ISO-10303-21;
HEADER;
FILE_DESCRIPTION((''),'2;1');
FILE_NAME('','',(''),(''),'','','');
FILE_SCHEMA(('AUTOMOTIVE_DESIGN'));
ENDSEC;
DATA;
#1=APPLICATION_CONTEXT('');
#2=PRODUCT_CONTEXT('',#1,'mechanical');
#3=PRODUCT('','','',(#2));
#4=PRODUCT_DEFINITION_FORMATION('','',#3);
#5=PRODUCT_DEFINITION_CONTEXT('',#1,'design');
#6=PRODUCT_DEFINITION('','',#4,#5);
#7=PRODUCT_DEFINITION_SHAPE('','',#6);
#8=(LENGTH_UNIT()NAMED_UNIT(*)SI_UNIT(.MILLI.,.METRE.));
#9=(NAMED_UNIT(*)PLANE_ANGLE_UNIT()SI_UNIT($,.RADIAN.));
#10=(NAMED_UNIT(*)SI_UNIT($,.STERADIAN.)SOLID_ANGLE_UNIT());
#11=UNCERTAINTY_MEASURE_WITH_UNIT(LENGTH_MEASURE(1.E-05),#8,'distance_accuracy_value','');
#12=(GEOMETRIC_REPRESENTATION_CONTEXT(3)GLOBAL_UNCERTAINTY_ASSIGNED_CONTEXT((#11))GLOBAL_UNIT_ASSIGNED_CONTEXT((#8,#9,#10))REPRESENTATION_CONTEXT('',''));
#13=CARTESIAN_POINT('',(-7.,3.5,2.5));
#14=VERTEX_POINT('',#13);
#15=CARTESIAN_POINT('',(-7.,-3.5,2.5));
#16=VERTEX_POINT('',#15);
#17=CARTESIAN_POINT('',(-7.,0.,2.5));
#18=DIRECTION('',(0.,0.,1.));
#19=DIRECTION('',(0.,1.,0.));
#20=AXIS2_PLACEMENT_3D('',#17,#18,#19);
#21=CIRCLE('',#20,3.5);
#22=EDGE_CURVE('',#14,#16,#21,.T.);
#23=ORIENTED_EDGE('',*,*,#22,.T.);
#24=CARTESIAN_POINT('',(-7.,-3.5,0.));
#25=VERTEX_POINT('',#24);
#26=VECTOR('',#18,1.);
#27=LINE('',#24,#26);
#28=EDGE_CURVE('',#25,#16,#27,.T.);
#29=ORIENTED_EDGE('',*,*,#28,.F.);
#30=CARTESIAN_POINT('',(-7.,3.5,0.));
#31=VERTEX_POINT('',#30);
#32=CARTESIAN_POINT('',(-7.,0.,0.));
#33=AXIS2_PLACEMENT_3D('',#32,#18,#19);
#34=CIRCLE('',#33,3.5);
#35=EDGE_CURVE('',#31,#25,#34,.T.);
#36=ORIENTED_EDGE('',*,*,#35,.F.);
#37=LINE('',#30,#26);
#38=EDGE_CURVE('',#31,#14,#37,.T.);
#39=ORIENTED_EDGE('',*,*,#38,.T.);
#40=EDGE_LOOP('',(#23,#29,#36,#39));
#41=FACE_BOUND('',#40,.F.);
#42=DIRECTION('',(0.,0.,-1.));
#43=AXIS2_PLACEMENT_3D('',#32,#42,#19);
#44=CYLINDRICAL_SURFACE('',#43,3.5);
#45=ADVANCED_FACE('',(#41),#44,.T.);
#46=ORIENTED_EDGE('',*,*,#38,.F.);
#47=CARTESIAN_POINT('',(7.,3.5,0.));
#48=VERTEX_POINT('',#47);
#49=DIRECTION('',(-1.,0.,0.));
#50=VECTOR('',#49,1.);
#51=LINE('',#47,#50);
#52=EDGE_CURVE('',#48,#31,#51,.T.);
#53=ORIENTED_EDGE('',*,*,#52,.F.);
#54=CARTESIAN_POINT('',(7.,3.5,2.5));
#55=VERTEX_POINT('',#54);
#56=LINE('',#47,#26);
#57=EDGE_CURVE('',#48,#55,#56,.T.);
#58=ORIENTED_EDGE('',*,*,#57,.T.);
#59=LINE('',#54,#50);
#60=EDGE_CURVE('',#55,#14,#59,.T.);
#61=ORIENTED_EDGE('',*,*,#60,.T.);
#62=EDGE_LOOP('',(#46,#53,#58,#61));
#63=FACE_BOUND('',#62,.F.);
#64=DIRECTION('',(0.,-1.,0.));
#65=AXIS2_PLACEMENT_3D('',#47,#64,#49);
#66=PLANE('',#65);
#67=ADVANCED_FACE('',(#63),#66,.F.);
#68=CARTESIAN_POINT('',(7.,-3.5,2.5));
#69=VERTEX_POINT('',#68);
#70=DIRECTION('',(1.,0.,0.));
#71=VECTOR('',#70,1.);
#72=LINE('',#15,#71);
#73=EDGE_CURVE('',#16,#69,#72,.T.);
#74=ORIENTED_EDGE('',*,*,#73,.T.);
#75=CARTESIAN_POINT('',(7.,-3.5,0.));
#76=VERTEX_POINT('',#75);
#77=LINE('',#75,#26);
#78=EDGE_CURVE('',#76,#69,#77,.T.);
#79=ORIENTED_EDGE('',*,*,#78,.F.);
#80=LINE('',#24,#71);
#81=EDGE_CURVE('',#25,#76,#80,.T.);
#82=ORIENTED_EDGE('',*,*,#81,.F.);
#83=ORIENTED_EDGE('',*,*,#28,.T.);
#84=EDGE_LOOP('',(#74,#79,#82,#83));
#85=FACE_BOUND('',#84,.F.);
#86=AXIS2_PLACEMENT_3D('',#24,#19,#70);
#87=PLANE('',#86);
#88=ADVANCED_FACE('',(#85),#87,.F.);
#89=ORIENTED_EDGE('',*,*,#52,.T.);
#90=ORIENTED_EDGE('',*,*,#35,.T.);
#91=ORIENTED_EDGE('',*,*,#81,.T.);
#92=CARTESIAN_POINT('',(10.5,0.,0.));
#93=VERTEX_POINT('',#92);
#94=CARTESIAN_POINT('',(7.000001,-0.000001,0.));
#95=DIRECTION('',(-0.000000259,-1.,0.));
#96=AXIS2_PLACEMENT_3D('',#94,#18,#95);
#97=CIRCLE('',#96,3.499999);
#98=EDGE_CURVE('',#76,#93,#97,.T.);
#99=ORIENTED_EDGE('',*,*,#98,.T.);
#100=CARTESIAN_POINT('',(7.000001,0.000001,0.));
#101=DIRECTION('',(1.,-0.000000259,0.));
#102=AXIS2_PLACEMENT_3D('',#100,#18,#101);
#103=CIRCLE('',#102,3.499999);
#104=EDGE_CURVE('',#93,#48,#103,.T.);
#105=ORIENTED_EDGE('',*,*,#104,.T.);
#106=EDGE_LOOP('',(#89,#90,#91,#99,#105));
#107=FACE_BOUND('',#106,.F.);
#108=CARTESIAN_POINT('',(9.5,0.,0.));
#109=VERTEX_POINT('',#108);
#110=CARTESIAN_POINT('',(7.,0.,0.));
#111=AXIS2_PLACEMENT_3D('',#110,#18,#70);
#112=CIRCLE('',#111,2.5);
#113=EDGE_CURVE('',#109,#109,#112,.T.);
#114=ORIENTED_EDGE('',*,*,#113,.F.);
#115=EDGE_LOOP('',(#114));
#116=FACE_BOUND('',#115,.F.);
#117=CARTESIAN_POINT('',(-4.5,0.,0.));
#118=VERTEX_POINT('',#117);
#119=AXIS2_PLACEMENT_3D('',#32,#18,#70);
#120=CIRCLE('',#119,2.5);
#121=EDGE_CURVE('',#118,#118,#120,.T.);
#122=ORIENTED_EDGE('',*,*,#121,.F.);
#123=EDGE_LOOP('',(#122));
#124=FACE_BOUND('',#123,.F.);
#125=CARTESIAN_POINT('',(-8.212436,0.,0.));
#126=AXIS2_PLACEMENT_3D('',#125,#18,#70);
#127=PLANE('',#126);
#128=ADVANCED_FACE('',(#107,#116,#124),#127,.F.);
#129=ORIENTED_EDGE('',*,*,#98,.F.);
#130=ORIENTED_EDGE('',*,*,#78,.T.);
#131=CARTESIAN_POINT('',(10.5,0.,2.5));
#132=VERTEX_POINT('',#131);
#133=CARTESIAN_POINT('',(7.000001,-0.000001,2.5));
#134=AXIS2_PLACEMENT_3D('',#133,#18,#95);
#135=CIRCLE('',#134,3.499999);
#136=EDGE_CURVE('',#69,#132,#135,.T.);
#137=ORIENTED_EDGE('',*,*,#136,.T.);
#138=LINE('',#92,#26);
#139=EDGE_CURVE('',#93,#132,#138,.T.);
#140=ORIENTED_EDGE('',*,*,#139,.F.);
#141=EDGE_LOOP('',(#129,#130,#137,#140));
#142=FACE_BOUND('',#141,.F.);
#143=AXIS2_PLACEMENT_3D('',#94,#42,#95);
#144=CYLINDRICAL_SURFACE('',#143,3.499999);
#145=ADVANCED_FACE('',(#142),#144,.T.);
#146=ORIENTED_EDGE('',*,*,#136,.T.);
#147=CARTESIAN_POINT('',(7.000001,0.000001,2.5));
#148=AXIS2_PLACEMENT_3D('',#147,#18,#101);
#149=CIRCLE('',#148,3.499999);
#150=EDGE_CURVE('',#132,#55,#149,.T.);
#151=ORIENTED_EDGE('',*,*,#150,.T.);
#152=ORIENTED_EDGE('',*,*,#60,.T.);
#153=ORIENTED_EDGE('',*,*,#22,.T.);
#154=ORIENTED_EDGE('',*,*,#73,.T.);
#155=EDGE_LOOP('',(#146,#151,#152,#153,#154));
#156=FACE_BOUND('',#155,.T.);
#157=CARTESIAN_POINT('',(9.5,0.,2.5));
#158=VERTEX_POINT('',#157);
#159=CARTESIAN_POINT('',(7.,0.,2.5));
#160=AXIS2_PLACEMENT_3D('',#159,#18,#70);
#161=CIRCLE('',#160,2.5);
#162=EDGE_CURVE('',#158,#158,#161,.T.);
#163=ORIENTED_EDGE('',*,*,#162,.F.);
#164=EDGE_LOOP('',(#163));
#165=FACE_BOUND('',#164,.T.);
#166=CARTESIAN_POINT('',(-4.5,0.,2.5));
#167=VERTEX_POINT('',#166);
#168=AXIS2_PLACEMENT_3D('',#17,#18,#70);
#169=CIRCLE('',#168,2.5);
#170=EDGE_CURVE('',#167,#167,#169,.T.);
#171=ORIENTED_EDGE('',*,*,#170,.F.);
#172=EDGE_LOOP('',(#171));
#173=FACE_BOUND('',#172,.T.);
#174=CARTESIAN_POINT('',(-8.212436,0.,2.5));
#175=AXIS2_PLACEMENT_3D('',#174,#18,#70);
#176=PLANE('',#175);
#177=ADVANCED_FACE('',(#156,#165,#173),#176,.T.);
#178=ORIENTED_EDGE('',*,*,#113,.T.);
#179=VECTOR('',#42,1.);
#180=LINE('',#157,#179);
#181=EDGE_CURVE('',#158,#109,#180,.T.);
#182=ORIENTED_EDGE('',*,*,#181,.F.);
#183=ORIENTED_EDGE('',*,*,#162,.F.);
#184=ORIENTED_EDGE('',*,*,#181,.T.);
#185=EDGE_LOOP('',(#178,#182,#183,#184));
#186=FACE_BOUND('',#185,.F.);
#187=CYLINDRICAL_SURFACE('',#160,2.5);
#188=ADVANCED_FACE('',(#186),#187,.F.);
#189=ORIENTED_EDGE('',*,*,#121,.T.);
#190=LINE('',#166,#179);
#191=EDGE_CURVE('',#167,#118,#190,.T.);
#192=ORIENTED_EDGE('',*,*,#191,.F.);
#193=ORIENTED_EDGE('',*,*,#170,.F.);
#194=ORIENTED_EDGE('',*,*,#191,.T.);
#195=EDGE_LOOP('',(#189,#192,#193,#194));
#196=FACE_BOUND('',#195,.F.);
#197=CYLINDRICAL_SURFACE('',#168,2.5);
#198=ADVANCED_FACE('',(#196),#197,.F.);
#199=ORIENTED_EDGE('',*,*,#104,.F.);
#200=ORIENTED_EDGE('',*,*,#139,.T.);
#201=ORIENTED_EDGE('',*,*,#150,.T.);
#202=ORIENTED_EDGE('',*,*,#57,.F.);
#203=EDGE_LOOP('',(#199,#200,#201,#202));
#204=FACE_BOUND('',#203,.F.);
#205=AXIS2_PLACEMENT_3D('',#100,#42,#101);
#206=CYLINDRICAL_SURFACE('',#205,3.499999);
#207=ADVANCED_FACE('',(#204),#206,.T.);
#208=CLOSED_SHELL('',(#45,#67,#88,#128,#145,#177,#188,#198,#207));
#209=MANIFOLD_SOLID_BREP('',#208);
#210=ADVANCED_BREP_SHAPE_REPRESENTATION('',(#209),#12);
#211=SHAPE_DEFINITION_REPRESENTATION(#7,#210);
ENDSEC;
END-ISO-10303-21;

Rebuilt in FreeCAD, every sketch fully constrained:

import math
import FreeCAD as App
import Part
import Sketcher

doc = App.newDocument("Part")
body = doc.addObject("PartDesign::Body", "Body")

sketch1 = body.newObject("Sketcher::SketchObject", "Sketch")
sketch1.AttachmentSupport = (doc.getObject("XY_Plane"), [""])
sketch1.MapMode = "FlatFace"
sketch1.addGeometry([
    Part.ArcOfCircle(Part.Circle(App.Vector(-7, 0, 0), App.Vector(0, 0, 1), 3.5), math.radians(90), math.radians(270)),
    Part.LineSegment(App.Vector(-7, -3.5, 0), App.Vector(7, -3.5, 0)),
    Part.ArcOfCircle(Part.Circle(App.Vector(7, 0, 0), App.Vector(0, 0, 1), 3.5), math.radians(-90), math.radians(0)),
    Part.ArcOfCircle(Part.Circle(App.Vector(7, 0, 0), App.Vector(0, 0, 1), 3.5), math.radians(0), math.radians(90)),
    Part.LineSegment(App.Vector(7, 3.5, 0), App.Vector(-7, 3.5, 0)),
], False)
sketch1.addConstraint([
    Sketcher.Constraint("Tangent", 0, 2, 1, 1),
    Sketcher.Constraint("Tangent", 1, 2, 2, 1),
    Sketcher.Constraint("Tangent", 2, 2, 3, 1),
    Sketcher.Constraint("Tangent", 3, 2, 4, 1),
    Sketcher.Constraint("Tangent", 4, 2, 0, 1),
    Sketcher.Constraint("Horizontal", 1),
    Sketcher.Constraint("Horizontal", 4),
    Sketcher.Constraint("Equal", 0, 2),
    Sketcher.Constraint("Symmetric", 0, 3, 2, 3, -1, 1),
    Sketcher.Constraint("PointOnObject", 2, 2, -1),
    Sketcher.Constraint("Radius", 0, 3.5),
    Sketcher.Constraint("DistanceX", 1, 1, 1, 2, 14.0),
])
pad1 = body.newObject("PartDesign::Pad", "Pad")
pad1.Profile = sketch1
pad1.Length = 2.5

sketch2 = body.newObject("Sketcher::SketchObject", "Sketch001")
sketch2.AttachmentSupport = (doc.getObject("XY_Plane"), [""])
sketch2.MapMode = "FlatFace"
sketch2.AttachmentOffset = App.Placement(App.Vector(0, 0, 2.5), App.Rotation())
sketch2.addGeometry([
    Part.Circle(App.Vector(-7, 0, 0), App.Vector(0, 0, 1), 2.5),
    Part.Circle(App.Vector(7, 0, 0), App.Vector(0, 0, 1), 2.5),
], False)
sketch2.addConstraint([
    Sketcher.Constraint("Equal", 0, 1),
    Sketcher.Constraint("Symmetric", 0, 3, 1, 3, -1, 1),
    Sketcher.Constraint("PointOnObject", 0, 3, -1),
    Sketcher.Constraint("Diameter", 0, 5.0),
    Sketcher.Constraint("DistanceX", 0, 3, -1, 1, 7.0),
])
pocket1 = body.newObject("PartDesign::Pocket", "Pocket")
pocket1.Profile = sketch2
pocket1.Length = 25

doc.recompute()
